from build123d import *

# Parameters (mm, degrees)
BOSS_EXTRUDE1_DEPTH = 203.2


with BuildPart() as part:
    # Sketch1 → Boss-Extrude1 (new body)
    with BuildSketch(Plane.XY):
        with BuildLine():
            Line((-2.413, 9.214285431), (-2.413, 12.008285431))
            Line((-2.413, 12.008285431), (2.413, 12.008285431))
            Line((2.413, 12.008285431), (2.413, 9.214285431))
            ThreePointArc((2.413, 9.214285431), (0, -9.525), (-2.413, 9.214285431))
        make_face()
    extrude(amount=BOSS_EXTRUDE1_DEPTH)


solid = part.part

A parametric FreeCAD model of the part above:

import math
import FreeCAD as App
import Part
import Sketcher
from FreeCAD import Vector
Q = App.Units.Quantity

doc = App.newDocument("Part")
body = doc.addObject("PartDesign::Body", "Body")

sketch1 = body.newObject("Sketcher::SketchObject", "Sketch")
sketch1.AttachmentSupport = (doc.getObject("XY_Plane"), [""])
sketch1.MapMode = "FlatFace"
sketch1.addGeometry([
    Part.LineSegment(Vector(-2.4, 12, 0), Vector(-2.4, 9.2, 0)),
    Part.ArcOfCircle(Part.Circle(Vector(0, 0, 0), Vector(0, 0, 1), 9.5), math.radians(105), math.radians(435)),
    Part.LineSegment(Vector(2.4, 9.2, 0), Vector(2.4, 12, 0)),
    Part.LineSegment(Vector(2.4, 12, 0), Vector(-2.4, 12, 0)),
], False)
sketch1.addConstraint([
    Sketcher.Constraint("Coincident", 0, 2, 1, 1),
    Sketcher.Constraint("Coincident", 1, 2, 2, 1),
    Sketcher.Constraint("Coincident", 2, 2, 3, 1),
    Sketcher.Constraint("Coincident", 3, 2, 0, 1),
    Sketcher.Constraint("Vertical", 0),
    Sketcher.Constraint("Vertical", 2),
    Sketcher.Constraint("Horizontal", 3),
    Sketcher.Constraint("Coincident", 1, 3, -1, 1),
    Sketcher.Constraint("Horizontal", 0, 2, 1, 2),
    Sketcher.Constraint("Radius", 1, Q("0.375 in")),
    Sketcher.Constraint("DistanceX", 3, 2, 3, 1, Q("0.19 in")),
    Sketcher.Constraint("DistanceY", 0, 2, 0, 1, Q("0.11 in")),
])
pad1 = body.newObject("PartDesign::Pad", "Pad")
pad1.Profile = sketch1
pad1.Length = Q("8 in")

doc.recompute()
